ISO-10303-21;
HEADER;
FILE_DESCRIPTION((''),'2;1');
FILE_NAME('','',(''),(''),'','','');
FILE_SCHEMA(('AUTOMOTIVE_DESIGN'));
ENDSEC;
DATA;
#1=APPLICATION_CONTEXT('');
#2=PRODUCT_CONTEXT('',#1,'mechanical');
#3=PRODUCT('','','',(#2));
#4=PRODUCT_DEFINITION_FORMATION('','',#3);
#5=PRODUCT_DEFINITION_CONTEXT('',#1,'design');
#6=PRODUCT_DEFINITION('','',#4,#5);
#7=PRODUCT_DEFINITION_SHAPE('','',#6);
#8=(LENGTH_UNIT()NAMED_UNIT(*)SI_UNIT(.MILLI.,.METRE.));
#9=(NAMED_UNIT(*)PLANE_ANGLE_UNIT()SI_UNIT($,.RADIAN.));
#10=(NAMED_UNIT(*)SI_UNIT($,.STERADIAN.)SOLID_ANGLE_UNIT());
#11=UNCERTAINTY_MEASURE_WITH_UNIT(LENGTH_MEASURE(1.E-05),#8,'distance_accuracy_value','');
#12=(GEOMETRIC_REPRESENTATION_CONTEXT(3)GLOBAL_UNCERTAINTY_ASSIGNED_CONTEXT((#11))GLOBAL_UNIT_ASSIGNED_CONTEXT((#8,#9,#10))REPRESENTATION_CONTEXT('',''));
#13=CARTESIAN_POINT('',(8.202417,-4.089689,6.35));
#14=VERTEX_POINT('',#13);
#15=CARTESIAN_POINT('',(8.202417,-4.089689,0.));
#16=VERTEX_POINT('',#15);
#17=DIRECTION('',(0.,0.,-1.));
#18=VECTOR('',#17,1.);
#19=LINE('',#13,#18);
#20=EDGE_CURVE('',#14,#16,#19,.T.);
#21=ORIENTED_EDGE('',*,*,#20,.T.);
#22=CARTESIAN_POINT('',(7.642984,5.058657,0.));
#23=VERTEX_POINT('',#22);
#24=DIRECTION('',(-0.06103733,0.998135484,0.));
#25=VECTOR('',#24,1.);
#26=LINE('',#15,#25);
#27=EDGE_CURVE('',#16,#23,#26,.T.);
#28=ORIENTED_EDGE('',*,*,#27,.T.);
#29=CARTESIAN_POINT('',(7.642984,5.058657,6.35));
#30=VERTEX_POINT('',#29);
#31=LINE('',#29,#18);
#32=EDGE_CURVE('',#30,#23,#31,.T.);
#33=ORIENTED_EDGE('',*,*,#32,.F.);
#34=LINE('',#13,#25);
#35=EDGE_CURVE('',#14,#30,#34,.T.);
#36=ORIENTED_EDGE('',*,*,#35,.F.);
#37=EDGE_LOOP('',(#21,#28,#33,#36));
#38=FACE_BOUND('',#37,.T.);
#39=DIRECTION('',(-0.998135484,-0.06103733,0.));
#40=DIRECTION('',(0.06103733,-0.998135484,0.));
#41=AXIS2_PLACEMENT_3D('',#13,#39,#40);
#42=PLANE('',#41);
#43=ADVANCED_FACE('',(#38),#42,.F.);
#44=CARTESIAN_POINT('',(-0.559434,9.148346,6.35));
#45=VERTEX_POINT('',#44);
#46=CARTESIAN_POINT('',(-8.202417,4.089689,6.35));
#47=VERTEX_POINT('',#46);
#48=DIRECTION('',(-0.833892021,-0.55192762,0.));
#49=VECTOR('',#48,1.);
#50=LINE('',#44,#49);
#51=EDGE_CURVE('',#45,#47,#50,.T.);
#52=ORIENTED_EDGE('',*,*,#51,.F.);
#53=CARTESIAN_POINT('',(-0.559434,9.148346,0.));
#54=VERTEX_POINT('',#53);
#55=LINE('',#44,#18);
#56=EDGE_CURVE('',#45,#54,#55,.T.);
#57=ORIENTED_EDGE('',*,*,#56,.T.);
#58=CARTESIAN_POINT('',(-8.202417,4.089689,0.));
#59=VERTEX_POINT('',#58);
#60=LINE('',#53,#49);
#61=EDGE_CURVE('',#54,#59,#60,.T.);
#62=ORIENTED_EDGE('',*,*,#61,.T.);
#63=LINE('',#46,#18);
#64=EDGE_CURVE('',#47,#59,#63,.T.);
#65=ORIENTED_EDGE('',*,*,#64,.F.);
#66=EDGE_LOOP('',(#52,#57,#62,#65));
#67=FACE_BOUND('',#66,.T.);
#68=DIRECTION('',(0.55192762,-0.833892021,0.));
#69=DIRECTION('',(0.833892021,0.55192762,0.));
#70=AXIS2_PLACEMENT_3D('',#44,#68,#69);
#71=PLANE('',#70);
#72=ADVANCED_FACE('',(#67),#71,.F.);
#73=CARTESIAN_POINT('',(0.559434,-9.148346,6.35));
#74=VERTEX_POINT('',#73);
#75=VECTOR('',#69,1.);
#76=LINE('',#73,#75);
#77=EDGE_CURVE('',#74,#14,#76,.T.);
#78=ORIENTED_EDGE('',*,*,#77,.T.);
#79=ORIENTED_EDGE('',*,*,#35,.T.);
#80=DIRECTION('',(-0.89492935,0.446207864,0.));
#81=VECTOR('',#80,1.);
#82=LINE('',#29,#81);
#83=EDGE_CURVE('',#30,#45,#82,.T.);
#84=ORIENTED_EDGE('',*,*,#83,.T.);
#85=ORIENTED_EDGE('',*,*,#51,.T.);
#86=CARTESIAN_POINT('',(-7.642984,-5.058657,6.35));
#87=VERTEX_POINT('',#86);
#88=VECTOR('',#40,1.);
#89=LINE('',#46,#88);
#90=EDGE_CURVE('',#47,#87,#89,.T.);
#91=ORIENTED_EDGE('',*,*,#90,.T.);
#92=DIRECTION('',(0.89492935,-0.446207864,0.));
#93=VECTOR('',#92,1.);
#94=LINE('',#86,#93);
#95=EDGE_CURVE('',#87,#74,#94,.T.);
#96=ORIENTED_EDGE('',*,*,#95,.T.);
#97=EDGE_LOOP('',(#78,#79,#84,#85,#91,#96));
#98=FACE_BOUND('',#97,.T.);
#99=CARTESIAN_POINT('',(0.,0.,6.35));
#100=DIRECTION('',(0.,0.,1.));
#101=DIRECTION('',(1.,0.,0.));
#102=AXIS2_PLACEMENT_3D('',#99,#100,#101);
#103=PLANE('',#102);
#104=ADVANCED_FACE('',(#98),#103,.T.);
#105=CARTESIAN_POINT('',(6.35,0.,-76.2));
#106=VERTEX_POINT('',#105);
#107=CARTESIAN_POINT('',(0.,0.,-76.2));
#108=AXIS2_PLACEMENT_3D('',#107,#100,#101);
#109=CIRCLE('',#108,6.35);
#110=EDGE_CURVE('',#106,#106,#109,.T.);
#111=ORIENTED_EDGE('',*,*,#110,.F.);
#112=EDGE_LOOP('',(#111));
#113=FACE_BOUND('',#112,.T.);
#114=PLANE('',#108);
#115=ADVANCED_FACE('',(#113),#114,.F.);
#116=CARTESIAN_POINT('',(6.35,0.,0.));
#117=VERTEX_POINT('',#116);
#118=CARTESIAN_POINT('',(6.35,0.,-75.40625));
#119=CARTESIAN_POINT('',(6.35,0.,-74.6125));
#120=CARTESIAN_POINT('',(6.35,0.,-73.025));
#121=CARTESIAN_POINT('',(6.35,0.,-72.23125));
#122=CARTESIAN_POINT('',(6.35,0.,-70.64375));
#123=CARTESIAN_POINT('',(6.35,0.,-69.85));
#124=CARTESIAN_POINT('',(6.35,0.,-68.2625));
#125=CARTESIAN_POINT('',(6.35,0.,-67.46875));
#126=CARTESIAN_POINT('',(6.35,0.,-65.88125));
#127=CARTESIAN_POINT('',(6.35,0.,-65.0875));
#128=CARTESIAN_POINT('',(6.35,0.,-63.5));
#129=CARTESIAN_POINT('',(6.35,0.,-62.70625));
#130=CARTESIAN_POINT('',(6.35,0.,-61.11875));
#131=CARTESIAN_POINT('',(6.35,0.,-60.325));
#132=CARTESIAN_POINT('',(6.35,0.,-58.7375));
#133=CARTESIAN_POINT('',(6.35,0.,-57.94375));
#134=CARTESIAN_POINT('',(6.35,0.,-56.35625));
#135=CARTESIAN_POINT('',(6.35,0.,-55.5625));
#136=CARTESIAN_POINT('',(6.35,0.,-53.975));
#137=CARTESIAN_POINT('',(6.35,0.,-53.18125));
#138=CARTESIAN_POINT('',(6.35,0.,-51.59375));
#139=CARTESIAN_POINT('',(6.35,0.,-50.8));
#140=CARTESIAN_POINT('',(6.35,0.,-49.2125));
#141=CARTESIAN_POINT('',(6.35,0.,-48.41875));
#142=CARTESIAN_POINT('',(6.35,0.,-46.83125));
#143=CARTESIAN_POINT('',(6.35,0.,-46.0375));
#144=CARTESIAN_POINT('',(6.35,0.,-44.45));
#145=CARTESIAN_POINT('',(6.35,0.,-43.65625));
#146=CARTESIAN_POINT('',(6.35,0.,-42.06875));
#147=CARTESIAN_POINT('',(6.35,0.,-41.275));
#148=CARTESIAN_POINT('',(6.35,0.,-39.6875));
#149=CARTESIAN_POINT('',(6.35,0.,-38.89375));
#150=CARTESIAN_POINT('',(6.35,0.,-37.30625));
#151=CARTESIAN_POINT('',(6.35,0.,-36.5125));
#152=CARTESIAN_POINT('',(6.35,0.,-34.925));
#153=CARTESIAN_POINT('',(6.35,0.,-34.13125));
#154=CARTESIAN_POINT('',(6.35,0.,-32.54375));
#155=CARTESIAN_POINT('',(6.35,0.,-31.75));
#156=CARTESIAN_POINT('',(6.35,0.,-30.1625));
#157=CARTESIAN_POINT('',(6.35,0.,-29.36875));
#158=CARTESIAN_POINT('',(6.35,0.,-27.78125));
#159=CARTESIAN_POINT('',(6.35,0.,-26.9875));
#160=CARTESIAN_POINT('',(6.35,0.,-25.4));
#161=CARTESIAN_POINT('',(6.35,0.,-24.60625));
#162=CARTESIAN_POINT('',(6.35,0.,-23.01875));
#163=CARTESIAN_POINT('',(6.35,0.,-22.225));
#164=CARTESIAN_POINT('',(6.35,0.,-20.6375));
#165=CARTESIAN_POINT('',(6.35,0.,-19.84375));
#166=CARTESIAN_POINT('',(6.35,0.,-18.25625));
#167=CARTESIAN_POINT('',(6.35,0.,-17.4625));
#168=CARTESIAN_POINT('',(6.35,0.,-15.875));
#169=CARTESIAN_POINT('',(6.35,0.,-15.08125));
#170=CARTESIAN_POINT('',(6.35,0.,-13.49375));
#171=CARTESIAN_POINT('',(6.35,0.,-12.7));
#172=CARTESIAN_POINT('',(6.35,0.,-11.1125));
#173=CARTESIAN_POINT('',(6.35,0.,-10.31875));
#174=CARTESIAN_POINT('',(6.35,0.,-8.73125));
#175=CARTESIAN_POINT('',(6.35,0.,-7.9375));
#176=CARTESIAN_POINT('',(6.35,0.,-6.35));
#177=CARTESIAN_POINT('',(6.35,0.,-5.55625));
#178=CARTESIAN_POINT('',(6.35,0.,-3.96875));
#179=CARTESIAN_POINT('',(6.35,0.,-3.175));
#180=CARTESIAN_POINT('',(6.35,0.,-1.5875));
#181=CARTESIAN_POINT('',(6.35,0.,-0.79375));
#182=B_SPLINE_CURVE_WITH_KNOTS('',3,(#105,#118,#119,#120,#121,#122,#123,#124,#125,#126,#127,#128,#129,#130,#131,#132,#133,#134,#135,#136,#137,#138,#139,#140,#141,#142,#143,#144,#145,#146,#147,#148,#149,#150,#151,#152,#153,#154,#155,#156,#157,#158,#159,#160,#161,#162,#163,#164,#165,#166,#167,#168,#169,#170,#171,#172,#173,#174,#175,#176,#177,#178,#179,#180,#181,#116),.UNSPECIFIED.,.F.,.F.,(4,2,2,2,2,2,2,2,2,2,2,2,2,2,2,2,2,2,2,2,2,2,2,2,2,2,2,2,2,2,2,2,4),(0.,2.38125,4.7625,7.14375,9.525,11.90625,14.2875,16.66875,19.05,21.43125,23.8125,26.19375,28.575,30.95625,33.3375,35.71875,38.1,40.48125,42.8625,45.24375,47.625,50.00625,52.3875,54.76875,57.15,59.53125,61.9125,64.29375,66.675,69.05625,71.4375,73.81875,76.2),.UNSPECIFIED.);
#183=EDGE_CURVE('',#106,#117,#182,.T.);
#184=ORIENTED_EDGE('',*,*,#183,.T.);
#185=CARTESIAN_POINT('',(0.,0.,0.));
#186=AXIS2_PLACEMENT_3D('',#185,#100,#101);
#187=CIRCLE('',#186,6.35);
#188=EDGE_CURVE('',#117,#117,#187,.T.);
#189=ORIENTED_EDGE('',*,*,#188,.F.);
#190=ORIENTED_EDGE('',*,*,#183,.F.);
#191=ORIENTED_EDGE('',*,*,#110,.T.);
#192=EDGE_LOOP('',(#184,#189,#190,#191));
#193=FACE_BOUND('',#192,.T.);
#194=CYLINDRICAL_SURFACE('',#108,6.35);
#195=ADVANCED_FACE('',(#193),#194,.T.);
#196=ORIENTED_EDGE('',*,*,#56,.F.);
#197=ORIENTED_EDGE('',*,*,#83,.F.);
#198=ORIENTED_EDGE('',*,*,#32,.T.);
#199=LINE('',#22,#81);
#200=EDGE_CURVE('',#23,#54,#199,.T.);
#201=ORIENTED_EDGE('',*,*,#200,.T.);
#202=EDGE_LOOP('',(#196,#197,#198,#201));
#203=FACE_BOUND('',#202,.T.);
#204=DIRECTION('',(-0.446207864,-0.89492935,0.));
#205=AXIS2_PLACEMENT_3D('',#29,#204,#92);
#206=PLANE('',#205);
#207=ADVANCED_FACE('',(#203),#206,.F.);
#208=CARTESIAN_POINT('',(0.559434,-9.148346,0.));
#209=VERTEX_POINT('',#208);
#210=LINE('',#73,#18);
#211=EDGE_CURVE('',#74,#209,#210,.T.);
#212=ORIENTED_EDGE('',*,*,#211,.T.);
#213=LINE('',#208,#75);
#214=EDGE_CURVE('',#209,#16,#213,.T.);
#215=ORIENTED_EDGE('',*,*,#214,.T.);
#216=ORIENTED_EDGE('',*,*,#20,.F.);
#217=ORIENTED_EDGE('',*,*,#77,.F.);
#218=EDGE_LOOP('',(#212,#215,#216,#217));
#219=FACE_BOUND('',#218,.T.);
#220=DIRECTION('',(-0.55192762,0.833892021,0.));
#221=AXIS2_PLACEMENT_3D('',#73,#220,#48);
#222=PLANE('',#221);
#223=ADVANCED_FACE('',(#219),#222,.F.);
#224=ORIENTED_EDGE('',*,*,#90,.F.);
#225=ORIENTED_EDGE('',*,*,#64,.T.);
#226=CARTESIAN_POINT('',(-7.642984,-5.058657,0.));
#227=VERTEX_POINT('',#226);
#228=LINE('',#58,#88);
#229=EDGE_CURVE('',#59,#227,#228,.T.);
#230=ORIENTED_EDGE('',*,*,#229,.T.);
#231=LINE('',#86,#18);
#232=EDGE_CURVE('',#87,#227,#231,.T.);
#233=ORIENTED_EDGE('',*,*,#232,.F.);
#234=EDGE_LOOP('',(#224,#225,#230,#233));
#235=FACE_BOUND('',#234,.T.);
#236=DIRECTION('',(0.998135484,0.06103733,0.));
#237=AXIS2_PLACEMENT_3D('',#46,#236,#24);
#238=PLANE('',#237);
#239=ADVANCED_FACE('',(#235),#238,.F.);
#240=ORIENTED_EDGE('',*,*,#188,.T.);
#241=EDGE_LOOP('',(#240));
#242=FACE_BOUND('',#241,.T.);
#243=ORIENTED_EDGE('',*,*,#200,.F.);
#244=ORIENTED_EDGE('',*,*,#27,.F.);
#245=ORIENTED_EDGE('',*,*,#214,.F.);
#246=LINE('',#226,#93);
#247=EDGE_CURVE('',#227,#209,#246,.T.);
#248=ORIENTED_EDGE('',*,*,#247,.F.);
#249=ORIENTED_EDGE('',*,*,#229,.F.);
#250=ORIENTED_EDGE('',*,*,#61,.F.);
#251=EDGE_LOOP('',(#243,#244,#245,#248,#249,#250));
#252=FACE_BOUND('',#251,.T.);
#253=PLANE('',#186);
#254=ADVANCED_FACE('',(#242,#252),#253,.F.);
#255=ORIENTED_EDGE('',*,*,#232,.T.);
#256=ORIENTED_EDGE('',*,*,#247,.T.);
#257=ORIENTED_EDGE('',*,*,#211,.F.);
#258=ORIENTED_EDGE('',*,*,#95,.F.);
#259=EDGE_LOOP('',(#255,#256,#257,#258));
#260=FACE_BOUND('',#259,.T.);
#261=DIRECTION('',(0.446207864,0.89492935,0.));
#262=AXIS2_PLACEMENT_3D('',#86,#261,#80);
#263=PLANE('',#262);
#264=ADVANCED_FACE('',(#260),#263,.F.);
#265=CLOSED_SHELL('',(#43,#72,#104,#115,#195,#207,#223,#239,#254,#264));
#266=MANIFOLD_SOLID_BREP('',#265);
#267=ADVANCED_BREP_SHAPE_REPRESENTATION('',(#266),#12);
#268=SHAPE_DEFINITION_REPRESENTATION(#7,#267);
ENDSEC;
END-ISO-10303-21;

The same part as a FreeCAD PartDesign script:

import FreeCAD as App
import Part
import Sketcher
Q = App.Units.Quantity


def add_polygon(sketch, points):
    """Adds a closed chain of lines whose ends are joined by coincident constraints."""
    first, n = sketch.GeometryCount, len(points)
    for a, b in zip(points, points[1:] + points[:1]):
        sketch.addGeometry(Part.LineSegment(App.Vector(*a, 0), App.Vector(*b, 0)), False)
    for i in range(n):
        sketch.addConstraint(Sketcher.Constraint("Coincident", first + i, 2, first + (i + 1) % n, 1))

doc = App.newDocument("Part")
params = doc.addObject("Spreadsheet::Sheet", "Params")
for row, (alias, value) in enumerate([
    ("sketch1_diameter", "0.5 in"),
    ("pad1_length", "3 in"),
    ("pad2_length", "0.25 in"),
], start=1):
    params.set(f"A{row}", alias)
    params.set(f"B{row}", "=" + value)
    params.setAlias(f"B{row}", alias)

body = doc.addObject("PartDesign::Body", "Body")

# Sketch on XY plane
sketch1 = body.newObject("Sketcher::SketchObject", "Sketch")
sketch1.AttachmentSupport = (doc.getObject("XY_Plane"), [""])
sketch1.MapMode = "FlatFace"
sketch1.addGeometry(Part.Circle(App.Vector(0, 0, 0), App.Vector(0, 0, 1), 6), False)
sketch1.addConstraint([
    Sketcher.Constraint("Coincident", 0, 3, -1, 1),
    Sketcher.Constraint("Diameter", 0, Q("0.5 in")),
])
sketch1.setExpression("Constraints[1]", "Params.sketch1_diameter")
pad1 = body.newObject("PartDesign::Pad", "Pad")
pad1.Profile = sketch1
pad1.setExpression("Length", "Params.pad1_length")
pad1.Reversed = True

# Sketch on XY plane
sketch2 = body.newObject("Sketcher::SketchObject", "Sketch001")
sketch2.AttachmentSupport = (doc.getObject("XY_Plane"), [""])
sketch2.MapMode = "FlatFace"
add_polygon(sketch2, [(8, -4), (8, 5), (-1, 9), (-8, 4), (-8, -5), (1, -9)])  # lines 0-5
sketch2.addConstraint([
    Sketcher.Constraint("Symmetric", 0, 2, 3, 2, -1, 1),
    Sketcher.Constraint("Symmetric", 1, 2, 4, 2, -1, 1),
    Sketcher.Constraint("Symmetric", 2, 2, 5, 2, -1, 1),
    Sketcher.Constraint("Equal", 0, 1),
    Sketcher.Constraint("Equal", 1, 2),
    Sketcher.Constraint("DistanceX", 2, 2, 0, 2, 15.845401),
    Sketcher.Constraint("DistanceY", -1, 1, 2, 2, 4.089689),
    Sketcher.Constraint("DistanceY", 0, 2, 1, 2, 4.089689),
    Sketcher.Constraint("DistanceX", 3, 2, 1, 2, 7.08355),
])
pad2 = body.newObject("PartDesign::Pad", "Pad001")
pad2.Profile = sketch2
pad2.setExpression("Length", "Params.pad2_length")

doc.recompute()
